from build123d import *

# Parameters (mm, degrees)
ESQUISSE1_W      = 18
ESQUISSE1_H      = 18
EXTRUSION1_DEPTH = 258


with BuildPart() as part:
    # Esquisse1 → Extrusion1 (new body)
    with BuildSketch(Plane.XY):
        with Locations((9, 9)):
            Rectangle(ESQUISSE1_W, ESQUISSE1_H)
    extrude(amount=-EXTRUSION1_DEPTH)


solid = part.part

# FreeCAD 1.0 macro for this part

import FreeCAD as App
import Part
import Sketcher
from FreeCAD import Vector
Q = App.Units.Quantity


def add_polygon(sketch, points):
    """Adds a closed chain of lines whose ends are joined by coincident constraints."""
    first, n = sketch.GeometryCount, len(points)
    for a, b in zip(points, points[1:] + points[:1]):
        sketch.addGeometry(Part.LineSegment(App.Vector(*a, 0), App.Vector(*b, 0)), False)
    for i in range(n):
        sketch.addConstraint(Sketcher.Constraint("Coincident", first + i, 2, first + (i + 1) % n, 1))

doc = App.newDocument("Part")
body = doc.addObject("PartDesign::Body", "Body")

# Sketch on XY plane
sketch1 = body.newObject("Sketcher::SketchObject", "Sketch")
sketch1.AttachmentSupport = (doc.getObject("XY_Plane"), [""])
sketch1.MapMode = "FlatFace"
add_polygon(sketch1, [(0, 18), (0, 0), (18, 0), (18, 18)])  # lines 0-3
sketch1.addConstraint(Sketcher.Constraint("Vertical", 0))
sketch1.addConstraint(Sketcher.Constraint("Horizontal", 1))
sketch1.addConstraint(Sketcher.Constraint("Vertical", 2))
sketch1.addConstraint(Sketcher.Constraint("Horizontal", 3))
sketch1.addConstraint(Sketcher.Constraint("Coincident", 0, 2, -1, 1))
sketch1.addConstraint(Sketcher.Constraint("Equal", 3, 0))
sketch1.addConstraint(Sketcher.Constraint("DistanceX", 1, 1, 1, 2, Q("18 mm")))
pad1 = body.newObject("PartDesign::Pad", "Pad")
pad1.Profile = sketch1
pad1.Length = 258
pad1.Reversed = True

doc.recompute()
